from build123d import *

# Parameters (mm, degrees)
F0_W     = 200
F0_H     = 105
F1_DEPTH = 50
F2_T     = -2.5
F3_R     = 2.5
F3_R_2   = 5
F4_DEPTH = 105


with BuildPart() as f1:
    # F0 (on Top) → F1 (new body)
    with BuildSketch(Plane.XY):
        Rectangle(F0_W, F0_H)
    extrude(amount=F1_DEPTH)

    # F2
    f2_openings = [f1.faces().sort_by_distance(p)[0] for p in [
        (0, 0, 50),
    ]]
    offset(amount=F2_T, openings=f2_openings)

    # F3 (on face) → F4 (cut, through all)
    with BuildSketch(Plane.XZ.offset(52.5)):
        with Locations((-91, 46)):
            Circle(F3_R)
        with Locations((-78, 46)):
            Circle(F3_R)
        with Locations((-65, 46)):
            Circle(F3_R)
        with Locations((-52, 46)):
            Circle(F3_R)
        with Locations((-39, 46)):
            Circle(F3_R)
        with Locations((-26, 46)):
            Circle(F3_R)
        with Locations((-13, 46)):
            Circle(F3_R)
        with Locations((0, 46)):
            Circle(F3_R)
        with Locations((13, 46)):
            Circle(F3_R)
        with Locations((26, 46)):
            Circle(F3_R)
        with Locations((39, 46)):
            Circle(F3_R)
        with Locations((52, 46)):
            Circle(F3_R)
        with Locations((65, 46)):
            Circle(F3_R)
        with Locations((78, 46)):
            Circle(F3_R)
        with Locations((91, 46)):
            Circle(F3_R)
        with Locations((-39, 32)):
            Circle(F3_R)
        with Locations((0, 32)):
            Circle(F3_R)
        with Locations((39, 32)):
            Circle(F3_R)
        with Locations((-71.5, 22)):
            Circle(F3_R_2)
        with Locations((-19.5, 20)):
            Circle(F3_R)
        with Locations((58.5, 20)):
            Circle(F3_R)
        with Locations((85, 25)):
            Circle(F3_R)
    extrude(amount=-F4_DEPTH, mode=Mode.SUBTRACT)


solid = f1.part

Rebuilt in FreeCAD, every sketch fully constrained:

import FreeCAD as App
import Part
import Sketcher
from FreeCAD import Vector


def faces_at(feature, points):
    """Names of the faces that lie closest to the given points."""
    faces = feature.Shape.Faces
    near = lambda p: min(range(len(faces)), key=lambda i: faces[i].distToShape(Part.Vertex(*p))[0])
    return sorted({f"Face{near(p) + 1}" for p in points})

doc = App.newDocument("Part")
body = doc.addObject("PartDesign::Body", "Body")

# Sketch on XY plane
sketch1 = doc.addObject("Sketcher::SketchObject", "Sketch")
body.addObject(sketch1)
sketch1.AttachmentSupport = (doc.XY_Plane, [""])
sketch1.MapMode = "FlatFace"
sketch1.addGeometry([
    Part.LineSegment(Vector(-100, 52, 0), Vector(-100, -52, 0)),
    Part.LineSegment(Vector(-100, -52, 0), Vector(100, -52, 0)),
    Part.LineSegment(Vector(100, -52, 0), Vector(100, 52, 0)),
    Part.LineSegment(Vector(100, 52, 0), Vector(-100, 52, 0)),
], False)
sketch1.addConstraint([
    Sketcher.Constraint("Coincident", 0, 2, 1, 1),
    Sketcher.Constraint("Coincident", 1, 2, 2, 1),
    Sketcher.Constraint("Coincident", 2, 2, 3, 1),
    Sketcher.Constraint("Coincident", 3, 2, 0, 1),
    Sketcher.Constraint("Vertical", 0),
    Sketcher.Constraint("Horizontal", 1),
    Sketcher.Constraint("Vertical", 2),
    Sketcher.Constraint("Horizontal", 3),
    Sketcher.Constraint("Symmetric", 0, 2, 2, 2, -1, 1),
    Sketcher.Constraint("DistanceX", 1, 1, 1, 2, 200.0),
    Sketcher.Constraint("DistanceY", 0, 2, 0, 1, 105.0),
])
pad1 = doc.addObject("PartDesign::Pad", "Pad")
body.addObject(pad1)
pad1.Profile = sketch1
pad1.Length = 50
doc.recompute()

thickness = doc.addObject("PartDesign::Thickness", "Thickness")
body.addObject(thickness)
thickness.Base = (pad1, faces_at(pad1, [(0, 0, 50)]))
thickness.Value = 2.5
thickness.Reversed = True
thickness.Join = "Arc"

# Sketch on XZ plane
sketch2 = doc.addObject("Sketcher::SketchObject", "Sketch001")
body.addObject(sketch2)
sketch2.AttachmentSupport = (doc.XZ_Plane, [""])
sketch2.MapMode = "FlatFace"
sketch2.AttachmentOffset = App.Placement(Vector(0, 0, 52.5), App.Rotation())
sketch2.addGeometry([
    Part.Circle(Vector(-91, 46, 0), Vector(0, 0, 1), 2.5),  # 0
    Part.Circle(Vector(-78, 46, 0), Vector(0, 0, 1), 2.5),  # 1
    Part.Circle(Vector(-65, 46, 0), Vector(0, 0, 1), 2.5),  # 2
    Part.Circle(Vector(-52, 46, 0), Vector(0, 0, 1), 2.5),  # 3
    Part.Circle(Vector(-39, 46, 0), Vector(0, 0, 1), 2.5),  # 4
    Part.Circle(Vector(-26, 46, 0), Vector(0, 0, 1), 2.5),  # 5
    Part.Circle(Vector(-13, 46, 0), Vector(0, 0, 1), 2.5),  # 6
    Part.Circle(Vector(0, 46, 0), Vector(0, 0, 1), 2.5),  # 7
    Part.Circle(Vector(13, 46, 0), Vector(0, 0, 1), 2.5),  # 8
    Part.Circle(Vector(26, 46, 0), Vector(0, 0, 1), 2.5),  # 9
    Part.Circle(Vector(39, 46, 0), Vector(0, 0, 1), 2.5),  # 10
    Part.Circle(Vector(52, 46, 0), Vector(0, 0, 1), 2.5),  # 11
    Part.Circle(Vector(65, 46, 0), Vector(0, 0, 1), 2.5),  # 12
    Part.Circle(Vector(78, 46, 0), Vector(0, 0, 1), 2.5),  # 13
    Part.Circle(Vector(91, 46, 0), Vector(0, 0, 1), 2.5),  # 14
    Part.Circle(Vector(-39, 32, 0), Vector(0, 0, 1), 2.5),  # 15
    Part.Circle(Vector(0, 32, 0), Vector(0, 0, 1), 2.5),  # 16
    Part.Circle(Vector(39, 32, 0), Vector(0, 0, 1), 2.5),  # 17
    Part.Circle(Vector(-71.5, 22, 0), Vector(0, 0, 1), 5),  # 18
    Part.Circle(Vector(-19.5, 20, 0), Vector(0, 0, 1), 2.5),  # 19
    Part.Circle(Vector(58.5, 20, 0), Vector(0, 0, 1), 2.5),  # 20
    Part.Circle(Vector(85, 25, 0), Vector(0, 0, 1), 2.5),  # 21
], False)
sketch2.addConstraint([
    Sketcher.Constraint("Equal", 0, 1),
    Sketcher.Constraint("Equal", 1, 2),
    Sketcher.Constraint("Equal", 2, 3),
    Sketcher.Constraint("Equal", 3, 4),
    Sketcher.Constraint("Equal", 4, 5),
    Sketcher.Constraint("Equal", 5, 6),
    Sketcher.Constraint("Equal", 6, 7),
    Sketcher.Constraint("Equal", 7, 8),
    Sketcher.Constraint("Equal", 8, 9),
    Sketcher.Constraint("Equal", 9, 10),
    Sketcher.Constraint("Equal", 10, 11),
    Sketcher.Constraint("Equal", 11, 12),
    Sketcher.Constraint("Equal", 12, 13),
    Sketcher.Constraint("Equal", 13, 14),
    Sketcher.Constraint("Equal", 14, 15),
    Sketcher.Constraint("Equal", 15, 16),
    Sketcher.Constraint("Equal", 16, 17),
    Sketcher.Constraint("Equal", 17, 19),
    Sketcher.Constraint("Equal", 19, 20),
    Sketcher.Constraint("Equal", 20, 21),
    Sketcher.Constraint("Symmetric", 6, 3, 8, 3, -2),
    Sketcher.Constraint("Symmetric", 5, 3, 9, 3, -2),
    Sketcher.Constraint("Symmetric", 4, 3, 10, 3, -2),
    Sketcher.Constraint("Symmetric", 3, 3, 11, 3, -2),
    Sketcher.Constraint("Symmetric", 2, 3, 12, 3, -2),
    Sketcher.Constraint("Symmetric", 1, 3, 13, 3, -2),
    Sketcher.Constraint("Symmetric", 0, 3, 14, 3, -2),
    Sketcher.Constraint("Symmetric", 15, 3, 17, 3, -2),
    Sketcher.Constraint("PointOnObject", 7, 3, -2),
    Sketcher.Constraint("PointOnObject", 16, 3, -2),
    Sketcher.Constraint("Horizontal", 0, 3, 1, 3),
    Sketcher.Constraint("Horizontal", 1, 3, 2, 3),
    Sketcher.Constraint("Horizontal", 2, 3, 3, 3),
    Sketcher.Constraint("Horizontal", 3, 3, 4, 3),
    Sketcher.Constraint("Horizontal", 4, 3, 5, 3),
    Sketcher.Constraint("Horizontal", 5, 3, 6, 3),
    Sketcher.Constraint("Horizontal", 6, 3, 7, 3),
    Sketcher.Constraint("Horizontal", 15, 3, 16, 3),
    Sketcher.Constraint("Horizontal", 19, 3, 20, 3),
    Sketcher.Constraint("Vertical", 4, 3, 15, 3),
    Sketcher.Constraint("Diameter", 0, 5.0),
    Sketcher.Constraint("Diameter", 18, 10.0),
    Sketcher.Constraint("DistanceX", 0, 3, -1, 1, 91.0),
    Sketcher.Constraint("DistanceY", -1, 1, 0, 3, 46.0),
    Sketcher.Constraint("DistanceX", 1, 3, -1, 1, 78.0),
    Sketcher.Constraint("DistanceX", 2, 3, -1, 1, 65.0),
    Sketcher.Constraint("DistanceX", 3, 3, -1, 1, 52.0),
    Sketcher.Constraint("DistanceX", 4, 3, -1, 1, 39.0),
    Sketcher.Constraint("DistanceX", 5, 3, -1, 1, 26.0),
    Sketcher.Constraint("DistanceX", 6, 3, -1, 1, 13.0),
    Sketcher.Constraint("DistanceY", -1, 1, 15, 3, 32.0),
    Sketcher.Constraint("DistanceY", -1, 1, 18, 3, 22.0),
    Sketcher.Constraint("DistanceY", -1, 1, 19, 3, 20.0),
    Sketcher.Constraint("DistanceX", -1, 1, 21, 3, 85.0),
    Sketcher.Constraint("DistanceY", -1, 1, 21, 3, 25.0),
    Sketcher.Constraint("DistanceX", 18, 3, -1, 1, 71.5),
    Sketcher.Constraint("DistanceX", 19, 3, -1, 1, 19.5),
    Sketcher.Constraint("DistanceX", -1, 1, 20, 3, 58.5),
])
pocket1 = doc.addObject("PartDesign::Pocket", "Pocket")
body.addObject(pocket1)
pocket1.Profile = sketch2
pocket1.Type = "ThroughAll"

doc.recompute()
